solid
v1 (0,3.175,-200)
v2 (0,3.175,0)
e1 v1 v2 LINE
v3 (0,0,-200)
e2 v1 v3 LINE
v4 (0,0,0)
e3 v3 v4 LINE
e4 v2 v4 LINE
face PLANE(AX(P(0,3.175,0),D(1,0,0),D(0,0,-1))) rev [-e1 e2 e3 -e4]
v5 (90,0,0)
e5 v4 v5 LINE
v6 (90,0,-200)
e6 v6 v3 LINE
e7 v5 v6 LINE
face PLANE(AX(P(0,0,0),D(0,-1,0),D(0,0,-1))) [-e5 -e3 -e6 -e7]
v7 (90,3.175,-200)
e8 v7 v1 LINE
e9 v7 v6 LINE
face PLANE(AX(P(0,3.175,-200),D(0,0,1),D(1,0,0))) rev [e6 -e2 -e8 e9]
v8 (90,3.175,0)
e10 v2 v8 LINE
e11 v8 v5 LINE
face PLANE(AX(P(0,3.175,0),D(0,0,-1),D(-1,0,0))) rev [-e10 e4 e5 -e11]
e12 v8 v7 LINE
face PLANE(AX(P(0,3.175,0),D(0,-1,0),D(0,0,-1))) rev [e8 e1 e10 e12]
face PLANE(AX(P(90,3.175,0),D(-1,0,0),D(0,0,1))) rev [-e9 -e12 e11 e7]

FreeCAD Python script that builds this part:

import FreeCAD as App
import Part
import Sketcher
from FreeCAD import Vector
Q = App.Units.Quantity


def add_polygon(sketch, points):
    """Adds a closed chain of lines whose ends are joined by coincident constraints."""
    first, n = sketch.GeometryCount, len(points)
    for a, b in zip(points, points[1:] + points[:1]):
        sketch.addGeometry(Part.LineSegment(App.Vector(*a, 0), App.Vector(*b, 0)), False)
    for i in range(n):
        sketch.addConstraint(Sketcher.Constraint("Coincident", first + i, 2, first + (i + 1) % n, 1))

doc = App.newDocument("Part")
body = doc.addObject("PartDesign::Body", "Body")

sketch1 = body.newObject("Sketcher::SketchObject", "Sketch")
sketch1.AttachmentSupport = (doc.getObject("XZ_Plane"), [""])
sketch1.MapMode = "FlatFace"
add_polygon(sketch1, [(0, -200), (0, 0), (90, 0), (90, -200)])
sketch1.addConstraint([
    Sketcher.Constraint("Vertical", 0),
    Sketcher.Constraint("Horizontal", 1),
    Sketcher.Constraint("Vertical", 2),
    Sketcher.Constraint("Horizontal", 3),
    Sketcher.Constraint("Coincident", 0, 2, -1, 1),
    Sketcher.Constraint("DistanceX", 1, 1, 1, 2, Q("90 mm")),
    Sketcher.Constraint("DistanceY", 0, 1, 0, 2, Q("200 mm")),
])
pad1 = body.newObject("PartDesign::Pad", "Pad")
pad1.Profile = sketch1
pad1.Length = 3.175
pad1.Reversed = True

doc.recompute()
